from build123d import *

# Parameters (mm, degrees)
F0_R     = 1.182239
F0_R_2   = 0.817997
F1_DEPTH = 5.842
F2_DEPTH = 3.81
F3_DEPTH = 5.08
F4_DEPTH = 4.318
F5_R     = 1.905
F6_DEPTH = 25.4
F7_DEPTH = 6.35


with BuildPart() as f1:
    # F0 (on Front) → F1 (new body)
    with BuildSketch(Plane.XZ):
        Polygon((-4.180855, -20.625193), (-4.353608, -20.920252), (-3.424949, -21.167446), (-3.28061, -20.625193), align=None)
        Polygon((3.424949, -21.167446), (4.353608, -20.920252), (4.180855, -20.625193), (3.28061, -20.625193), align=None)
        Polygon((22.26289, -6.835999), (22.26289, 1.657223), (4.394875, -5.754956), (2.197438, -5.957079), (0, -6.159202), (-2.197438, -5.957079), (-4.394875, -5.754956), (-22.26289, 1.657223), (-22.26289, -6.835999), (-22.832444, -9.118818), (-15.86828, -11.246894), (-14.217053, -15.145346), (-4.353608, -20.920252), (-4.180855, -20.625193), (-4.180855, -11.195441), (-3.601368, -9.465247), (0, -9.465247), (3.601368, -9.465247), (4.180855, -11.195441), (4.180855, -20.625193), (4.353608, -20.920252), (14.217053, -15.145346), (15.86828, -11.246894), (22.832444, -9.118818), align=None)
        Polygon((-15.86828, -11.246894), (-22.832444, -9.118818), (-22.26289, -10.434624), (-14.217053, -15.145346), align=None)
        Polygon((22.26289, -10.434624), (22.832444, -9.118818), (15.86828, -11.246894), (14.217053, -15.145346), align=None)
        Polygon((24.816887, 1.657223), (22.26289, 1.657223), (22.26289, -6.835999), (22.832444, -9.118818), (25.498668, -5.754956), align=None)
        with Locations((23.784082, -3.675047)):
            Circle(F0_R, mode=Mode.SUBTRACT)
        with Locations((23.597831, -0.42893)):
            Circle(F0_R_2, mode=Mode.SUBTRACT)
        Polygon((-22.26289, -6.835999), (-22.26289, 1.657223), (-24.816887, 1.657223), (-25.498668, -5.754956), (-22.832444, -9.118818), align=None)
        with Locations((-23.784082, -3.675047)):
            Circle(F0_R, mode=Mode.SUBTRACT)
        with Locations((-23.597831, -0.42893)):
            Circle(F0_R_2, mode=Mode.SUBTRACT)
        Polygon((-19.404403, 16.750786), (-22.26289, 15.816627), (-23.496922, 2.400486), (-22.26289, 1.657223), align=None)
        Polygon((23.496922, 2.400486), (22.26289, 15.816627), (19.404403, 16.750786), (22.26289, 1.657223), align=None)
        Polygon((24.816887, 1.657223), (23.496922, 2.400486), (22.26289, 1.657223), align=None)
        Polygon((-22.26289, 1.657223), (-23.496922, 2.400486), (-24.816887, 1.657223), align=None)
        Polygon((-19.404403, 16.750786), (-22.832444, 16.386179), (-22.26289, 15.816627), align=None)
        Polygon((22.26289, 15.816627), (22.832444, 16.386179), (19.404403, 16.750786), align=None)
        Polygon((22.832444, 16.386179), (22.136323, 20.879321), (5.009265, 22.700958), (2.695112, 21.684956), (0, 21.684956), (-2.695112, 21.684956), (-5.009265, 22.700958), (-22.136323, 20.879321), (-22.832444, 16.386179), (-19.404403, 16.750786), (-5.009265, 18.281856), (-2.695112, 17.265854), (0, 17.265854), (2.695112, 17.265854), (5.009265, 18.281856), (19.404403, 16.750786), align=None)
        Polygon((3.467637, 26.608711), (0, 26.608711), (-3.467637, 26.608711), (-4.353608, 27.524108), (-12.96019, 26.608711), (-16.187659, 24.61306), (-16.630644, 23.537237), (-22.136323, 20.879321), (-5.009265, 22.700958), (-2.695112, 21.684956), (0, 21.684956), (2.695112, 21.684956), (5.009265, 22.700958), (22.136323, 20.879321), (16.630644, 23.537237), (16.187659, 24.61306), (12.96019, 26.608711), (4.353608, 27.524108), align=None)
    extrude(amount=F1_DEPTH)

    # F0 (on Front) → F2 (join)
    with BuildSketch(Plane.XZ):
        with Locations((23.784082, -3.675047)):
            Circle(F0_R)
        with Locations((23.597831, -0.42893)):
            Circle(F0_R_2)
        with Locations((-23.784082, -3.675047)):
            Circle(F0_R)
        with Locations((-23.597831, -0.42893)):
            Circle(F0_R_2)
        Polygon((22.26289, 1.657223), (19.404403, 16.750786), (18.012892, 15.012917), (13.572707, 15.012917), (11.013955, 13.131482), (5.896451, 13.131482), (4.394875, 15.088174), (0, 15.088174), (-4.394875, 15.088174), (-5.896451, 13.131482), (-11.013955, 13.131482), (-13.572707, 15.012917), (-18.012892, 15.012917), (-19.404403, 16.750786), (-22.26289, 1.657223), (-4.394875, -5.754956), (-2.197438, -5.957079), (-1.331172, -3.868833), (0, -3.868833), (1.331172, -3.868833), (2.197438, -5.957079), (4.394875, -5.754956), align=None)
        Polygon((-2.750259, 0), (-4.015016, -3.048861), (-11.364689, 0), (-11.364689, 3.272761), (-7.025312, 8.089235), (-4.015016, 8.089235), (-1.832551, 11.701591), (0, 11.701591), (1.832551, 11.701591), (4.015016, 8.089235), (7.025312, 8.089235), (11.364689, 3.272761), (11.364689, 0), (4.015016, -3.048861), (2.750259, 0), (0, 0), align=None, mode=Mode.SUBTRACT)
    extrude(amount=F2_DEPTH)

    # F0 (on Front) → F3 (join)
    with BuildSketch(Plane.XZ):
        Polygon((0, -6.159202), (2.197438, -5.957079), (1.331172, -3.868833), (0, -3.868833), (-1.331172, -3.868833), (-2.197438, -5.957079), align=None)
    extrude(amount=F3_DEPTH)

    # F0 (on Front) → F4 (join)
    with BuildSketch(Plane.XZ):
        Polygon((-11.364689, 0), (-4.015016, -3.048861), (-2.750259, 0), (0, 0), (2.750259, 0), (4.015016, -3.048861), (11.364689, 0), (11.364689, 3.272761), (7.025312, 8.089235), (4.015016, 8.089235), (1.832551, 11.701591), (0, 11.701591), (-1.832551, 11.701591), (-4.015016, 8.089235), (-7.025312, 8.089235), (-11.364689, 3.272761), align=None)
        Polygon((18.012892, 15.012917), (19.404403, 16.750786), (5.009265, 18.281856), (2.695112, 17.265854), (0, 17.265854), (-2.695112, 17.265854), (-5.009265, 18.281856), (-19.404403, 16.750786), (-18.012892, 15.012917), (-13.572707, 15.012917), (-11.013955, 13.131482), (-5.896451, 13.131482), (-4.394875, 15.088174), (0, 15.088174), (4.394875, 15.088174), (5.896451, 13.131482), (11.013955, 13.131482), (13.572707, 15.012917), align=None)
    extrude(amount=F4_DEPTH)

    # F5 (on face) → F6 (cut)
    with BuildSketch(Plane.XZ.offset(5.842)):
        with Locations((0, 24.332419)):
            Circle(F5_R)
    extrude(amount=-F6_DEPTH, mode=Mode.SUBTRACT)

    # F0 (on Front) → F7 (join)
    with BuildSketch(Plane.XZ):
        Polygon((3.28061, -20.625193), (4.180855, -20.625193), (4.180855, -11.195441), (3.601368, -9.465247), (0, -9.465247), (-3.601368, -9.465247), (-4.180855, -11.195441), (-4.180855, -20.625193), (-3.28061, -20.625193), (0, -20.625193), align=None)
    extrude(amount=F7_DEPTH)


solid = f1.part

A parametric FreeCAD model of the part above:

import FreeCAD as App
import Part
import Sketcher
Q = App.Units.Quantity

doc = App.newDocument("Part")
body = doc.addObject("PartDesign::Body", "Body")

# Sketch on XZ plane
sketch1 = body.newObject("Sketcher::SketchObject", "Sketch")
sketch1.AttachmentSupport = (doc.getObject("XZ_Plane"), [""])
sketch1.MapMode = "FlatFace"
sketch1.addGeometry([
    Part.LineSegment(App.Vector(-4.353608, -20.920252, 0), App.Vector(-3.424949, -21.167446, 0)),  # 0
    Part.LineSegment(App.Vector(-3.424949, -21.167446, 0), App.Vector(-3.28061, -20.625193, 0)),  # 1
    Part.LineSegment(App.Vector(-3.28061, -20.625193, 0), App.Vector(-4.180855, -20.625193, 0)),  # 2
    Part.LineSegment(App.Vector(-4.180855, -20.625193, 0), App.Vector(-4.180855, -11.195441, 0)),  # 3
    Part.LineSegment(App.Vector(-4.180855, -11.195441, 0), App.Vector(-3.601368, -9.465247, 0)),  # 4
    Part.LineSegment(App.Vector(-3.601368, -9.465247, 0), App.Vector(3.601368, -9.465247, 0)),  # 5
    Part.LineSegment(App.Vector(3.601368, -9.465247, 0), App.Vector(4.180855, -11.195441, 0)),  # 6
    Part.LineSegment(App.Vector(4.180855, -11.195441, 0), App.Vector(4.180855, -20.625193, 0)),  # 7
    Part.LineSegment(App.Vector(4.180855, -20.625193, 0), App.Vector(3.28061, -20.625193, 0)),  # 8
    Part.LineSegment(App.Vector(3.28061, -20.625193, 0), App.Vector(3.424949, -21.167446, 0)),  # 9
    Part.LineSegment(App.Vector(3.424949, -21.167446, 0), App.Vector(4.353608, -20.920252, 0)),  # 10
    Part.LineSegment(App.Vector(4.353608, -20.920252, 0), App.Vector(14.217053, -15.145346, 0)),  # 11
    Part.LineSegment(App.Vector(14.217053, -15.145346, 0), App.Vector(22.26289, -10.434624, 0)),  # 12
    Part.LineSegment(App.Vector(22.26289, -10.434624, 0), App.Vector(22.832444, -9.118818, 0)),  # 13
    Part.LineSegment(App.Vector(22.832444, -9.118818, 0), App.Vector(25.498668, -5.754956, 0)),  # 14
    Part.LineSegment(App.Vector(25.498668, -5.754956, 0), App.Vector(24.816887, 1.657223, 0)),  # 15
    Part.LineSegment(App.Vector(24.816887, 1.657223, 0), App.Vector(23.496922, 2.400486, 0)),  # 16
    Part.LineSegment(App.Vector(23.496922, 2.400486, 0), App.Vector(22.26289, 15.816627, 0)),  # 17
    Part.LineSegment(App.Vector(22.26289, 15.816627, 0), App.Vector(22.832444, 16.386179, 0)),  # 18
    Part.LineSegment(App.Vector(22.832444, 16.386179, 0), App.Vector(22.136323, 20.879321, 0)),  # 19
    Part.LineSegment(App.Vector(22.136323, 20.879321, 0), App.Vector(16.630644, 23.537237, 0)),  # 20
    Part.LineSegment(App.Vector(16.630644, 23.537237, 0), App.Vector(16.187659, 24.61306, 0)),  # 21
    Part.LineSegment(App.Vector(16.187659, 24.61306, 0), App.Vector(12.96019, 26.608711, 0)),  # 22
    Part.LineSegment(App.Vector(12.96019, 26.608711, 0), App.Vector(4.353608, 27.524108, 0)),  # 23
    Part.LineSegment(App.Vector(4.353608, 27.524108, 0), App.Vector(3.467637, 26.608711, 0)),  # 24
    Part.LineSegment(App.Vector(3.467637, 26.608711, 0), App.Vector(-3.467637, 26.608711, 0)),  # 25
    Part.LineSegment(App.Vector(-3.467637, 26.608711, 0), App.Vector(-4.353608, 27.524108, 0)),  # 26
    Part.LineSegment(App.Vector(-4.353608, 27.524108, 0), App.Vector(-12.96019, 26.608711, 0)),  # 27
    Part.LineSegment(App.Vector(-12.96019, 26.608711, 0), App.Vector(-16.187659, 24.61306, 0)),  # 28
    Part.LineSegment(App.Vector(-16.187659, 24.61306, 0), App.Vector(-16.630644, 23.537237, 0)),  # 29
    Part.LineSegment(App.Vector(-16.630644, 23.537237, 0), App.Vector(-22.136323, 20.879321, 0)),  # 30
    Part.LineSegment(App.Vector(-22.136323, 20.879321, 0), App.Vector(-22.832444, 16.386179, 0)),  # 31
    Part.LineSegment(App.Vector(-22.832444, 16.386179, 0), App.Vector(-22.26289, 15.816627, 0)),  # 32
    Part.LineSegment(App.Vector(-22.26289, 15.816627, 0), App.Vector(-23.496922, 2.400486, 0)),  # 33
    Part.LineSegment(App.Vector(-23.496922, 2.400486, 0), App.Vector(-24.816887, 1.657223, 0)),  # 34
    Part.LineSegment(App.Vector(-24.816887, 1.657223, 0), App.Vector(-25.498668, -5.754956, 0)),  # 35
    Part.LineSegment(App.Vector(-25.498668, -5.754956, 0), App.Vector(-22.832444, -9.118818, 0)),  # 36
    Part.LineSegment(App.Vector(-22.832444, -9.118818, 0), App.Vector(-22.26289, -10.434624, 0)),  # 37
    Part.LineSegment(App.Vector(-22.26289, -10.434624, 0), App.Vector(-14.217053, -15.145346, 0)),  # 38
    Part.LineSegment(App.Vector(-14.217053, -15.145346, 0), App.Vector(-4.353608, -20.920252, 0)),  # 39
    Part.LineSegment(App.Vector(19.404403, 16.750786, 0), App.Vector(22.26289, 1.657223, 0)),  # 40
    Part.LineSegment(App.Vector(22.26289, 1.657223, 0), App.Vector(4.394875, -5.754956, 0)),  # 41
    Part.LineSegment(App.Vector(4.394875, -5.754956, 0), App.Vector(2.197438, -5.957079, 0)),  # 42
    Part.LineSegment(App.Vector(2.197438, -5.957079, 0), App.Vector(0, -6.159202, 0)),  # 43
    Part.LineSegment(App.Vector(0, -6.159202, 0), App.Vector(-2.197438, -5.957079, 0)),  # 44
    Part.LineSegment(App.Vector(-2.197438, -5.957079, 0), App.Vector(-4.394875, -5.754956, 0)),  # 45
    Part.LineSegment(App.Vector(-4.394875, -5.754956, 0), App.Vector(-22.26289, 1.657223, 0)),  # 46
    Part.LineSegment(App.Vector(-22.26289, 1.657223, 0), App.Vector(-19.404403, 16.750786, 0)),  # 47
    Part.LineSegment(App.Vector(-19.404403, 16.750786, 0), App.Vector(-5.009265, 18.281856, 0)),  # 48
    Part.LineSegment(App.Vector(-5.009265, 18.281856, 0), App.Vector(-2.695112, 17.265854, 0)),  # 49
    Part.LineSegment(App.Vector(-2.695112, 17.265854, 0), App.Vector(2.695112, 17.265854, 0)),  # 50
    Part.LineSegment(App.Vector(2.695112, 17.265854, 0), App.Vector(5.009265, 18.281856, 0)),  # 51
    Part.LineSegment(App.Vector(5.009265, 18.281856, 0), App.Vector(19.404403, 16.750786, 0)),  # 52
    Part.Circle(App.Vector(-23.784082, -3.675047, 0), App.Vector(0, 0, 1), 1.182239),  # 53
    Part.Circle(App.Vector(23.784082, -3.675047, 0), App.Vector(0, 0, 1), 1.182239),  # 54
    Part.Circle(App.Vector(-23.597831, -0.42893, 0), App.Vector(0, 0, 1), 0.817997),  # 55
    Part.Circle(App.Vector(23.597831, -0.42893, 0), App.Vector(0, 0, 1), 0.817997),  # 56
], False)
sketch1.addConstraint([
    Sketcher.Constraint("Coincident", 0, 2, 1, 1),
    Sketcher.Constraint("Coincident", 1, 2, 2, 1),
    Sketcher.Constraint("Coincident", 2, 2, 3, 1),
    Sketcher.Constraint("Coincident", 3, 2, 4, 1),
    Sketcher.Constraint("Coincident", 4, 2, 5, 1),
    Sketcher.Constraint("Coincident", 5, 2, 6, 1),
    Sketcher.Constraint("Coincident", 6, 2, 7, 1),
    Sketcher.Constraint("Coincident", 7, 2, 8, 1),
    Sketcher.Constraint("Coincident", 8, 2, 9, 1),
    Sketcher.Constraint("Coincident", 9, 2, 10, 1),
    Sketcher.Constraint("Coincident", 10, 2, 11, 1),
    Sketcher.Constraint("Coincident", 11, 2, 12, 1),
    Sketcher.Constraint("Coincident", 12, 2, 13, 1),
    Sketcher.Constraint("Coincident", 13, 2, 14, 1),
    Sketcher.Constraint("Coincident", 14, 2, 15, 1),
    Sketcher.Constraint("Coincident", 15, 2, 16, 1),
    Sketcher.Constraint("Coincident", 16, 2, 17, 1),
    Sketcher.Constraint("Coincident", 17, 2, 18, 1),
    Sketcher.Constraint("Coincident", 18, 2, 19, 1),
    Sketcher.Constraint("Coincident", 19, 2, 20, 1),
    Sketcher.Constraint("Coincident", 20, 2, 21, 1),
    Sketcher.Constraint("Coincident", 21, 2, 22, 1),
    Sketcher.Constraint("Coincident", 22, 2, 23, 1),
    Sketcher.Constraint("Coincident", 23, 2, 24, 1),
    Sketcher.Constraint("Coincident", 24, 2, 25, 1),
    Sketcher.Constraint("Coincident", 25, 2, 26, 1),
    Sketcher.Constraint("Coincident", 26, 2, 27, 1),
    Sketcher.Constraint("Coincident", 27, 2, 28, 1),
    Sketcher.Constraint("Coincident", 28, 2, 29, 1),
    Sketcher.Constraint("Coincident", 29, 2, 30, 1),
    Sketcher.Constraint("Coincident", 30, 2, 31, 1),
    Sketcher.Constraint("Coincident", 31, 2, 32, 1),
    Sketcher.Constraint("Coincident", 32, 2, 33, 1),
    Sketcher.Constraint("Coincident", 33, 2, 34, 1),
    Sketcher.Constraint("Coincident", 34, 2, 35, 1),
    Sketcher.Constraint("Coincident", 35, 2, 36, 1),
    Sketcher.Constraint("Coincident", 36, 2, 37, 1),
    Sketcher.Constraint("Coincident", 37, 2, 38, 1),
    Sketcher.Constraint("Coincident", 38, 2, 39, 1),
    Sketcher.Constraint("Coincident", 39, 2, 0, 1),
    Sketcher.Constraint("Coincident", 40, 2, 41, 1),
    Sketcher.Constraint("Coincident", 41, 2, 42, 1),
    Sketcher.Constraint("Coincident", 42, 2, 43, 1),
    Sketcher.Constraint("Coincident", 43, 2, 44, 1),
    Sketcher.Constraint("Coincident", 44, 2, 45, 1),
    Sketcher.Constraint("Coincident", 45, 2, 46, 1),
    Sketcher.Constraint("Coincident", 46, 2, 47, 1),
    Sketcher.Constraint("Coincident", 47, 2, 48, 1),
    Sketcher.Constraint("Coincident", 48, 2, 49, 1),
    Sketcher.Constraint("Coincident", 49, 2, 50, 1),
    Sketcher.Constraint("Coincident", 50, 2, 51, 1),
    Sketcher.Constraint("Coincident", 51, 2, 52, 1),
    Sketcher.Constraint("Coincident", 52, 2, 40, 1),
    Sketcher.Constraint("Horizontal", 2),
    Sketcher.Constraint("Vertical", 3),
    Sketcher.Constraint("Horizontal", 5),
    Sketcher.Constraint("Vertical", 7),
    Sketcher.Constraint("Horizontal", 8),
    Sketcher.Constraint("Horizontal", 25),
    Sketcher.Constraint("Horizontal", 50),
    Sketcher.Constraint("PointOnObject", 43, 2, -2),
    Sketcher.Constraint("DistanceY", 49, 2, 48, 2, Q("0.0400001 in")),
    Sketcher.Constraint("DistanceY", 50, 2, 51, 2, Q("0.0400001 in")),
    Sketcher.Constraint("Diameter", 53, Q("2.364478 mm")),
    Sketcher.Constraint("Diameter", 54, Q("2.364478 mm")),
    Sketcher.Constraint("Diameter", 55, Q("1.635994 mm")),
    Sketcher.Constraint("Diameter", 56, Q("1.635994 mm")),
    Sketcher.Constraint("DistanceY", 53, 3, 55, 3, Q("0.1277999 in")),
    Sketcher.Constraint("DistanceY", 54, 3, 55, 3, Q("0.1277999 in")),
    Sketcher.Constraint("DistanceY", 54, 3, 56, 3, Q("0.1277999 in")),
    Sketcher.Constraint("DistanceX", 41, 2, 11, 2, Q("0.3866999 in")),
    Sketcher.Constraint("DistanceY", 3, 1, 3, 2, Q("9.429752 mm")),
    Sketcher.Constraint("DistanceY", 7, 2, 7, 1, Q("9.429752 mm")),
    Sketcher.Constraint("DistanceY", 43, 2, -1, 1, Q("6.159202 mm")),
    Sketcher.Constraint("DistanceY", 0, 2, 53, 3, Q("17.492399 mm")),
    Sketcher.Constraint("DistanceY", 0, 2, 4, 2, Q("11.702199 mm")),
    Sketcher.Constraint("DistanceX", 8, 2, 10, 2, Q("1.072998 mm")),
    Sketcher.Constraint("DistanceY", 11, 2, 5, 2, Q("5.680099 mm")),
    Sketcher.Constraint("DistanceX", 19, 2, 16, 2, Q("1.360599 mm")),
    Sketcher.Constraint("DistanceY", 15, 2, 19, 2, Q("19.222098 mm")),
    Sketcher.Constraint("DistanceX", 20, 2, 18, 2, Q("6.2018 mm")),
    Sketcher.Constraint("DistanceX", 22, 2, 17, 2, Q("9.3027 mm")),
    Sketcher.Constraint("DistanceX", 26, 2, 22, 2, Q("17.313798 mm")),
    Sketcher.Constraint("DistanceX", 27, 2, 23, 2, Q("17.313798 mm")),
    Sketcher.Constraint("DistanceX", 31, 2, 29, 2, Q("6.2018 mm")),
    Sketcher.Constraint("DistanceX", 32, 2, 27, 2, Q("9.3027 mm")),
    Sketcher.Constraint("DistanceX", 33, 2, 30, 2, Q("1.360599 mm")),
    Sketcher.Constraint("DistanceY", 38, 2, 4, 2, Q("5.680099 mm")),
    Sketcher.Constraint("DistanceX", 39, 2, 1, 2, Q("1.072998 mm")),
    Sketcher.Constraint("DistanceX", 48, 2, 24, 2, Q("8.476902 mm")),
    Sketcher.Constraint("Distance", 11, Q("11.429658 mm")),
    Sketcher.Constraint("Distance", 15, Q("7.443468 mm")),
    Sketcher.Constraint("Distance", 18, Q("0.80547 mm")),
    Sketcher.Constraint("Distance", 24, Q("1.273929 mm")),
    Sketcher.Constraint("Distance", 26, Q("1.273929 mm")),
    Sketcher.Constraint("Distance", 32, Q("0.80547 mm")),
    Sketcher.Constraint("Distance", 35, Q("7.443468 mm")),
    Sketcher.Constraint("Distance", 39, Q("11.429658 mm")),
    Sketcher.Constraint("Distance", 48, Q("14.476331 mm")),
    Sketcher.Constraint("Distance", 52, Q("14.476331 mm")),
    Sketcher.Constraint("DistanceX", 2, 2, 2, 1, Q("0.900245 mm")),
    Sketcher.Constraint("DistanceX", 5, 1, 5, 2, Q("7.202736 mm")),
    Sketcher.Constraint("DistanceX", 8, 2, 8, 1, Q("0.900245 mm")),
    Sketcher.Constraint("DistanceX", 25, 2, 25, 1, Q("6.935274 mm")),
    Sketcher.Constraint("DistanceX", 50, 1, 50, 2, Q("5.390224 mm")),
    Sketcher.Constraint("DistanceX", 55, 3, -1, 1, Q("23.597831 mm")),
    Sketcher.Constraint("DistanceY", 55, 3, -1, 1, Q("0.42893 mm")),
    Sketcher.Constraint("DistanceX", -1, 1, 56, 3, Q("23.597831 mm")),
    Sketcher.Constraint("DistanceX", 0, 2, -1, 1, Q("3.424949 mm")),
    Sketcher.Constraint("DistanceX", 1, 2, -1, 1, Q("3.28061 mm")),
    Sketcher.Constraint("DistanceY", 3, 2, -1, 1, Q("11.195441 mm")),
    Sketcher.Constraint("DistanceY", 6, 2, -1, 1, Q("11.195441 mm")),
    Sketcher.Constraint("DistanceX", -1, 1, 8, 2, Q("3.28061 mm")),
    Sketcher.Constraint("DistanceX", -1, 1, 9, 2, Q("3.424949 mm")),
    Sketcher.Constraint("DistanceX", -1, 1, 12, 2, Q("22.26289 mm")),
    Sketcher.Constraint("DistanceX", -1, 1, 17, 2, Q("22.26289 mm")),
    Sketcher.Constraint("DistanceY", -1, 1, 18, 2, Q("16.386179 mm")),
    Sketcher.Constraint("DistanceY", -1, 1, 19, 2, Q("20.879321 mm")),
    Sketcher.Constraint("DistanceX", -1, 1, 21, 2, Q("16.187659 mm")),
    Sketcher.Constraint("DistanceY", -1, 1, 21, 2, Q("24.61306 mm")),
    Sketcher.Constraint("DistanceY", -1, 1, 22, 2, Q("26.608711 mm")),
    Sketcher.Constraint("DistanceX", -1, 1, 23, 2, Q("4.353608 mm")),
    Sketcher.Constraint("DistanceY", -1, 1, 24, 2, Q("26.608711 mm")),
    Sketcher.Constraint("DistanceY", -1, 1, 27, 2, Q("26.608711 mm")),
    Sketcher.Constraint("DistanceX", 28, 2, -1, 1, Q("16.187659 mm")),
    Sketcher.Constraint("DistanceY", -1, 1, 28, 2, Q("24.61306 mm")),
    Sketcher.Constraint("DistanceY", -1, 1, 30, 2, Q("20.879321 mm")),
    Sketcher.Constraint("DistanceY", -1, 1, 31, 2, Q("16.386179 mm")),
    Sketcher.Constraint("DistanceX", 37, 2, -1, 1, Q("22.26289 mm")),
    Sketcher.Constraint("DistanceX", -1, 1, 40, 2, Q("22.26289 mm")),
    Sketcher.Constraint("DistanceX", -1, 1, 42, 2, Q("2.197438 mm")),
    Sketcher.Constraint("DistanceY", 42, 2, -1, 1, Q("5.957079 mm")),
    Sketcher.Constraint("DistanceX", 44, 2, -1, 1, Q("2.197438 mm")),
    Sketcher.Constraint("DistanceY", 44, 2, -1, 1, Q("5.957079 mm")),
    Sketcher.Constraint("DistanceX", 46, 2, -1, 1, Q("22.26289 mm")),
    Sketcher.Constraint("DistanceX", 49, 2, -1, 1, Q("2.695112 mm")),
    Sketcher.Constraint("DistanceX", 53, 3, 55, 3, Q("0.186251 mm")),
    Sketcher.Constraint("DistanceX", 56, 3, 54, 3, Q("0.186251 mm")),
    Sketcher.Constraint("DistanceX", 4, 2, 1, 2, Q("0.320758 mm")),
    Sketcher.Constraint("DistanceY", 10, 2, 7, 2, Q("0.295059 mm")),
    Sketcher.Constraint("DistanceX", 13, 2, 54, 3, Q("0.951638 mm")),
    Sketcher.Constraint("DistanceY", 13, 2, 54, 3, Q("5.443771 mm")),
    Sketcher.Constraint("DistanceY", 14, 2, 54, 3, Q("2.079909 mm")),
    Sketcher.Constraint("DistanceX", 16, 2, 56, 3, Q("0.100909 mm")),
    Sketcher.Constraint("DistanceY", 16, 2, 17, 2, Q("13.416141 mm")),
    Sketcher.Constraint("DistanceY", 17, 2, 18, 2, Q("0.569552 mm")),
    Sketcher.Constraint("DistanceY", 18, 2, 20, 2, Q("7.151058 mm")),
    Sketcher.Constraint("DistanceY", 20, 2, 23, 2, Q("3.986871 mm")),
    Sketcher.Constraint("DistanceY", 29, 2, 26, 2, Q("3.986871 mm")),
    Sketcher.Constraint("DistanceX", 29, 2, 24, 2, Q("20.098281 mm")),
    Sketcher.Constraint("DistanceX", 30, 2, 29, 2, Q("5.505679 mm")),
    Sketcher.Constraint("DistanceY", 33, 2, 32, 2, Q("13.416141 mm")),
    Sketcher.Constraint("DistanceY", 53, 3, 34, 2, Q("5.33227 mm")),
    Sketcher.Constraint("DistanceY", 35, 2, 53, 3, Q("2.079909 mm")),
    Sketcher.Constraint("DistanceY", 36, 2, 35, 2, Q("3.363862 mm")),
    Sketcher.Constraint("DistanceX", 53, 3, 36, 2, Q("0.951638 mm")),
    Sketcher.Constraint("DistanceX", 36, 2, 38, 2, Q("8.615391 mm")),
    Sketcher.Constraint("DistanceY", 54, 3, 40, 2, Q("5.33227 mm")),
    Sketcher.Constraint("DistanceY", 5, 2, 41, 2, Q("3.710291 mm")),
    Sketcher.Constraint("DistanceY", 4, 2, 45, 2, Q("3.710291 mm")),
    Sketcher.Constraint("DistanceX", 45, 2, 3, 2, Q("0.21402 mm")),
    Sketcher.Constraint("DistanceY", 53, 3, 46, 2, Q("5.33227 mm")),
    Sketcher.Constraint("DistanceY", 32, 2, 47, 2, Q("0.934159 mm")),
    Sketcher.Constraint("DistanceX", 31, 2, 47, 2, Q("3.428041 mm")),
    Sketcher.Constraint("DistanceX", 24, 2, 51, 2, Q("1.541628 mm")),
    Sketcher.Constraint("DistanceY", 17, 2, 52, 2, Q("0.934159 mm")),
    Sketcher.Constraint("Distance", 9, Q("0.561135 mm")),
    Sketcher.Constraint("Distance", 12, Q("9.323433 mm")),
    Sketcher.Constraint("Distance", 14, Q("4.292356 mm")),
    Sketcher.Constraint("Distance", 34, Q("1.514842 mm")),
    Sketcher.Constraint("Distance", 37, Q("1.433784 mm")),
])
pad1 = body.newObject("PartDesign::Pad", "Pad")
pad1.Profile = sketch1
pad1.Length = Q("0.23 in")

# Sketch on XZ plane
sketch2 = body.newObject("Sketcher::SketchObject", "Sketch001")
sketch2.AttachmentSupport = (doc.getObject("XZ_Plane"), [""])
sketch2.MapMode = "FlatFace"
sketch2.addGeometry([
    Part.Circle(App.Vector(23.784082, -3.675047, 0), App.Vector(0, 0, 1), 1.182239),  # 0
    Part.Circle(App.Vector(23.597831, -0.42893, 0), App.Vector(0, 0, 1), 0.817997),  # 1
    Part.Circle(App.Vector(-23.784082, -3.675047, 0), App.Vector(0, 0, 1), 1.182239),  # 2
    Part.Circle(App.Vector(-23.597831, -0.42893, 0), App.Vector(0, 0, 1), 0.817997),  # 3
    Part.LineSegment(App.Vector(22.26289, 1.657223, 0), App.Vector(19.404403, 16.750786, 0)),  # 4
    Part.LineSegment(App.Vector(19.404403, 16.750786, 0), App.Vector(18.012892, 15.012917, 0)),  # 5
    Part.LineSegment(App.Vector(18.012892, 15.012917, 0), App.Vector(13.572707, 15.012917, 0)),  # 6
    Part.LineSegment(App.Vector(13.572707, 15.012917, 0), App.Vector(11.013955, 13.131482, 0)),  # 7
    Part.LineSegment(App.Vector(11.013955, 13.131482, 0), App.Vector(5.896451, 13.131482, 0)),  # 8
    Part.LineSegment(App.Vector(5.896451, 13.131482, 0), App.Vector(4.394875, 15.088174, 0)),  # 9
    Part.LineSegment(App.Vector(4.394875, 15.088174, 0), App.Vector(-4.394875, 15.088174, 0)),  # 10
    Part.LineSegment(App.Vector(-4.394875, 15.088174, 0), App.Vector(-5.896451, 13.131482, 0)),  # 11
    Part.LineSegment(App.Vector(-5.896451, 13.131482, 0), App.Vector(-11.013955, 13.131482, 0)),  # 12
    Part.LineSegment(App.Vector(-11.013955, 13.131482, 0), App.Vector(-13.572707, 15.012917, 0)),  # 13
    Part.LineSegment(App.Vector(-13.572707, 15.012917, 0), App.Vector(-18.012892, 15.012917, 0)),  # 14
    Part.LineSegment(App.Vector(-18.012892, 15.012917, 0), App.Vector(-19.404403, 16.750786, 0)),  # 15
    Part.LineSegment(App.Vector(-19.404403, 16.750786, 0), App.Vector(-22.26289, 1.657223, 0)),  # 16
    Part.LineSegment(App.Vector(-22.26289, 1.657223, 0), App.Vector(-4.394875, -5.754956, 0)),  # 17
    Part.LineSegment(App.Vector(-4.394875, -5.754956, 0), App.Vector(-2.197438, -5.957079, 0)),  # 18
    Part.LineSegment(App.Vector(-2.197438, -5.957079, 0), App.Vector(-1.331172, -3.868833, 0)),  # 19
    Part.LineSegment(App.Vector(-1.331172, -3.868833, 0), App.Vector(1.331172, -3.868833, 0)),  # 20
    Part.LineSegment(App.Vector(1.331172, -3.868833, 0), App.Vector(2.197438, -5.957079, 0)),  # 21
    Part.LineSegment(App.Vector(2.197438, -5.957079, 0), App.Vector(4.394875, -5.754956, 0)),  # 22
    Part.LineSegment(App.Vector(4.394875, -5.754956, 0), App.Vector(22.26289, 1.657223, 0)),  # 23
    Part.LineSegment(App.Vector(2.750259, 0, 0), App.Vector(-2.750259, 0, 0)),  # 24
    Part.LineSegment(App.Vector(-2.750259, 0, 0), App.Vector(-4.015016, -3.048861, 0)),  # 25
    Part.LineSegment(App.Vector(-4.015016, -3.048861, 0), App.Vector(-11.364689, 0, 0)),  # 26
    Part.LineSegment(App.Vector(-11.364689, 0, 0), App.Vector(-11.364689, 3.272761, 0)),  # 27
    Part.LineSegment(App.Vector(-11.364689, 3.272761, 0), App.Vector(-7.025312, 8.089235, 0)),  # 28
    Part.LineSegment(App.Vector(-7.025312, 8.089235, 0), App.Vector(-4.015016, 8.089235, 0)),  # 29
    Part.LineSegment(App.Vector(-4.015016, 8.089235, 0), App.Vector(-1.832551, 11.701591, 0)),  # 30
    Part.LineSegment(App.Vector(-1.832551, 11.701591, 0), App.Vector(1.832551, 11.701591, 0)),  # 31
    Part.LineSegment(App.Vector(1.832551, 11.701591, 0), App.Vector(4.015016, 8.089235, 0)),  # 32
    Part.LineSegment(App.Vector(4.015016, 8.089235, 0), App.Vector(7.025312, 8.089235, 0)),  # 33
    Part.LineSegment(App.Vector(7.025312, 8.089235, 0), App.Vector(11.364689, 3.272761, 0)),  # 34
    Part.LineSegment(App.Vector(11.364689, 3.272761, 0), App.Vector(11.364689, 0, 0)),  # 35
    Part.LineSegment(App.Vector(11.364689, 0, 0), App.Vector(4.015016, -3.048861, 0)),  # 36
    Part.LineSegment(App.Vector(4.015016, -3.048861, 0), App.Vector(2.750259, 0, 0)),  # 37
], False)
sketch2.addConstraint([
    Sketcher.Constraint("Coincident", 4, 2, 5, 1),
    Sketcher.Constraint("Coincident", 5, 2, 6, 1),
    Sketcher.Constraint("Coincident", 6, 2, 7, 1),
    Sketcher.Constraint("Coincident", 7, 2, 8, 1),
    Sketcher.Constraint("Coincident", 8, 2, 9, 1),
    Sketcher.Constraint("Coincident", 9, 2, 10, 1),
    Sketcher.Constraint("Coincident", 10, 2, 11, 1),
    Sketcher.Constraint("Coincident", 11, 2, 12, 1),
    Sketcher.Constraint("Coincident", 12, 2, 13, 1),
    Sketcher.Constraint("Coincident", 13, 2, 14, 1),
    Sketcher.Constraint("Coincident", 14, 2, 15, 1),
    Sketcher.Constraint("Coincident", 15, 2, 16, 1),
    Sketcher.Constraint("Coincident", 16, 2, 17, 1),
    Sketcher.Constraint("Coincident", 17, 2, 18, 1),
    Sketcher.Constraint("Coincident", 18, 2, 19, 1),
    Sketcher.Constraint("Coincident", 19, 2, 20, 1),
    Sketcher.Constraint("Coincident", 20, 2, 21, 1),
    Sketcher.Constraint("Coincident", 21, 2, 22, 1),
    Sketcher.Constraint("Coincident", 22, 2, 23, 1),
    Sketcher.Constraint("Coincident", 23, 2, 4, 1),
    Sketcher.Constraint("Coincident", 24, 2, 25, 1),
    Sketcher.Constraint("Coincident", 25, 2, 26, 1),
    Sketcher.Constraint("Coincident", 26, 2, 27, 1),
    Sketcher.Constraint("Coincident", 27, 2, 28, 1),
    Sketcher.Constraint("Coincident", 28, 2, 29, 1),
    Sketcher.Constraint("Coincident", 29, 2, 30, 1),
    Sketcher.Constraint("Coincident", 30, 2, 31, 1),
    Sketcher.Constraint("Coincident", 31, 2, 32, 1),
    Sketcher.Constraint("Coincident", 32, 2, 33, 1),
    Sketcher.Constraint("Coincident", 33, 2, 34, 1),
    Sketcher.Constraint("Coincident", 34, 2, 35, 1),
    Sketcher.Constraint("Coincident", 35, 2, 36, 1),
    Sketcher.Constraint("Coincident", 36, 2, 37, 1),
    Sketcher.Constraint("Coincident", 37, 2, 24, 1),
    Sketcher.Constraint("Horizontal", 6),
    Sketcher.Constraint("Horizontal", 8),
    Sketcher.Constraint("Horizontal", 10),
    Sketcher.Constraint("Horizontal", 12),
    Sketcher.Constraint("Horizontal", 14),
    Sketcher.Constraint("Horizontal", 20),
    Sketcher.Constraint("Horizontal", 24),
    Sketcher.Constraint("Vertical", 27),
    Sketcher.Constraint("Horizontal", 29),
    Sketcher.Constraint("Horizontal", 31),
    Sketcher.Constraint("Horizontal", 33),
    Sketcher.Constraint("Vertical", 35),
    Sketcher.Constraint("Equal", 0, 2),
    Sketcher.Constraint("Equal", 1, 3),
    Sketcher.Constraint("Symmetric", 26, 2, 35, 2, -1, 1),
    Sketcher.Constraint("Symmetric", 24, 2, 37, 2, -1, 1),
    Sketcher.Constraint("Symmetric", 0, 3, 2, 3, -2),
    Sketcher.Constraint("Symmetric", 1, 3, 3, 3, -2),
    Sketcher.Constraint("Symmetric", 8, 2, 11, 2, -2),
    Sketcher.Constraint("Symmetric", 6, 2, 13, 2, -2),
    Sketcher.Constraint("Symmetric", 4, 2, 15, 2, -2),
    Sketcher.Constraint("Symmetric", 18, 2, 21, 2, -2),
    Sketcher.Constraint("Symmetric", 17, 2, 22, 2, -2),
    Sketcher.Constraint("Symmetric", 16, 2, 23, 2, -2),
    Sketcher.Constraint("Symmetric", 29, 2, 32, 2, -2),
    Sketcher.Constraint("Symmetric", 25, 2, 36, 2, -2),
    Sketcher.Constraint("PointOnObject", 26, 2, -1),
    Sketcher.Constraint("Perpendicular", 17, 19),
    Sketcher.Constraint("Perpendicular", 21, 23),
    Sketcher.Constraint("Parallel", 19, 25),
    Sketcher.Constraint("Perpendicular", 25, 26),
    Sketcher.Constraint("Horizontal", 27, 2, 34, 2),
    Sketcher.Constraint("Vertical", 10, 2, 17, 2),
    Sketcher.Constraint("Vertical", 9, 2, 22, 2),
    Sketcher.Constraint("Vertical", 25, 2, 29, 2),
    Sketcher.Constraint("Equal", 8, 12),
    Sketcher.Constraint("Equal", 6, 14),
    Sketcher.Constraint("Equal", 29, 33),
    Sketcher.Constraint("Equal", 30, 32),
    Sketcher.Constraint("Diameter", 0, Q("2.364478 mm")),
    Sketcher.Constraint("Diameter", 1, Q("1.635994 mm")),
    Sketcher.Constraint("DistanceY", 0, 3, 1, 3, Q("0.1277999 in")),
    Sketcher.Constraint("DistanceX", 10, 2, 10, 1, Q("8.78975 mm")),
    Sketcher.Constraint("DistanceY", 27, 1, 27, 2, Q("3.272761 mm")),
    Sketcher.Constraint("DistanceX", 16, 2, 27, 2, Q("10.898201 mm")),
    Sketcher.Constraint("DistanceX", 11, 2, 30, 2, Q("4.0639 mm")),
    Sketcher.Constraint("Distance", 9, Q("2.46645 mm")),
    Sketcher.Constraint("Distance", 30, Q("4.220458 mm")),
    Sketcher.Constraint("DistanceX", 6, 2, 6, 1, Q("4.440185 mm")),
    Sketcher.Constraint("DistanceX", 8, 2, 8, 1, Q("5.117504 mm")),
    Sketcher.Constraint("DistanceX", 20, 1, 20, 2, Q("2.662344 mm")),
    Sketcher.Constraint("DistanceX", 24, 2, 24, 1, Q("5.500518 mm")),
    Sketcher.Constraint("DistanceX", 29, 1, 29, 2, Q("3.010296 mm")),
    Sketcher.Constraint("DistanceX", 31, 1, 31, 2, Q("3.665102 mm")),
    Sketcher.Constraint("DistanceX", -1, 1, 1, 3, Q("23.597831 mm")),
    Sketcher.Constraint("DistanceY", 1, 3, -1, 1, Q("0.42893 mm")),
    Sketcher.Constraint("DistanceX", 16, 2, -1, 1, Q("22.26289 mm")),
    Sketcher.Constraint("DistanceX", 18, 2, -1, 1, Q("2.197438 mm")),
    Sketcher.Constraint("DistanceY", 18, 2, -1, 1, Q("5.957079 mm")),
    Sketcher.Constraint("DistanceY", 25, 2, -1, 1, Q("3.048861 mm")),
    Sketcher.Constraint("DistanceY", -1, 1, 30, 2, Q("11.701591 mm")),
    Sketcher.Constraint("DistanceX", 1, 3, 0, 3, Q("0.186251 mm")),
    Sketcher.Constraint("DistanceX", 4, 2, 1, 3, Q("4.193428 mm")),
    Sketcher.Constraint("DistanceX", 5, 2, 4, 2, Q("1.391511 mm")),
    Sketcher.Constraint("DistanceY", 5, 2, 4, 2, Q("1.737869 mm")),
    Sketcher.Constraint("DistanceY", 0, 3, 7, 2, Q("16.806529 mm")),
    Sketcher.Constraint("DistanceY", 2, 3, 16, 2, Q("5.33227 mm")),
    Sketcher.Constraint("Distance", 4, Q("15.361855 mm")),
])
pad2 = body.newObject("PartDesign::Pad", "Pad001")
pad2.Profile = sketch2
pad2.Length = Q("0.15 in")

# Sketch on XZ plane
sketch3 = body.newObject("Sketcher::SketchObject", "Sketch002")
sketch3.AttachmentSupport = (doc.getObject("XZ_Plane"), [""])
sketch3.MapMode = "FlatFace"
sketch3.addGeometry([
    Part.LineSegment(App.Vector(0, -6.159202, 0), App.Vector(2.197438, -5.957079, 0)),  # 0
    Part.LineSegment(App.Vector(2.197438, -5.957079, 0), App.Vector(1.331172, -3.868833, 0)),  # 1
    Part.LineSegment(App.Vector(1.331172, -3.868833, 0), App.Vector(-1.331172, -3.868833, 0)),  # 2
    Part.LineSegment(App.Vector(-1.331172, -3.868833, 0), App.Vector(-2.197438, -5.957079, 0)),  # 3
    Part.LineSegment(App.Vector(-2.197438, -5.957079, 0), App.Vector(0, -6.159202, 0)),  # 4
], False)
sketch3.addConstraint([
    Sketcher.Constraint("Coincident", 0, 2, 1, 1),
    Sketcher.Constraint("Coincident", 1, 2, 2, 1),
    Sketcher.Constraint("Coincident", 2, 2, 3, 1),
    Sketcher.Constraint("Coincident", 3, 2, 4, 1),
    Sketcher.Constraint("Coincident", 4, 2, 0, 1),
    Sketcher.Constraint("Horizontal", 2),
    Sketcher.Constraint("Symmetric", 0, 2, 3, 2, -2),
    Sketcher.Constraint("PointOnObject", 4, 2, -2),
    Sketcher.Constraint("Equal", 1, 3),
    Sketcher.Constraint("DistanceY", 4, 2, -1, 1, Q("6.159202 mm")),
    Sketcher.Constraint("DistanceX", 2, 2, 2, 1, Q("2.662344 mm")),
    Sketcher.Constraint("DistanceX", -1, 1, 0, 2, Q("2.197438 mm")),
    Sketcher.Constraint("DistanceY", 0, 2, -1, 1, Q("5.957079 mm")),
    Sketcher.Constraint("DistanceY", 4, 2, 1, 2, Q("2.290369 mm")),
])
pad3 = body.newObject("PartDesign::Pad", "Pad002")
pad3.Profile = sketch3
pad3.Length = Q("0.2 in")

# Sketch on XZ plane
sketch4 = body.newObject("Sketcher::SketchObject", "Sketch003")
sketch4.AttachmentSupport = (doc.getObject("XZ_Plane"), [""])
sketch4.MapMode = "FlatFace"
sketch4.addGeometry([
    Part.LineSegment(App.Vector(-11.364689, 0, 0), App.Vector(-4.015016, -3.048861, 0)),  # 0
    Part.LineSegment(App.Vector(-4.015016, -3.048861, 0), App.Vector(-2.750259, 0, 0)),  # 1
    Part.LineSegment(App.Vector(-2.750259, 0, 0), App.Vector(2.750259, 0, 0)),  # 2
    Part.LineSegment(App.Vector(2.750259, 0, 0), App.Vector(4.015016, -3.048861, 0)),  # 3
    Part.LineSegment(App.Vector(4.015016, -3.048861, 0), App.Vector(11.364689, 0, 0)),  # 4
    Part.LineSegment(App.Vector(11.364689, 0, 0), App.Vector(11.364689, 3.272761, 0)),  # 5
    Part.LineSegment(App.Vector(11.364689, 3.272761, 0), App.Vector(7.025312, 8.089235, 0)),  # 6
    Part.LineSegment(App.Vector(7.025312, 8.089235, 0), App.Vector(4.015016, 8.089235, 0)),  # 7
    Part.LineSegment(App.Vector(4.015016, 8.089235, 0), App.Vector(1.832551, 11.701591, 0)),  # 8
    Part.LineSegment(App.Vector(1.832551, 11.701591, 0), App.Vector(-1.832551, 11.701591, 0)),  # 9
    Part.LineSegment(App.Vector(-1.832551, 11.701591, 0), App.Vector(-4.015016, 8.089235, 0)),  # 10
    Part.LineSegment(App.Vector(-4.015016, 8.089235, 0), App.Vector(-7.025312, 8.089235, 0)),  # 11
    Part.LineSegment(App.Vector(-7.025312, 8.089235, 0), App.Vector(-11.364689, 3.272761, 0)),  # 12
    Part.LineSegment(App.Vector(-11.364689, 3.272761, 0), App.Vector(-11.364689, 0, 0)),  # 13
    Part.LineSegment(App.Vector(18.012892, 15.012917, 0), App.Vector(19.404403, 16.750786, 0)),  # 14
    Part.LineSegment(App.Vector(19.404403, 16.750786, 0), App.Vector(5.009265, 18.281856, 0)),  # 15
    Part.LineSegment(App.Vector(5.009265, 18.281856, 0), App.Vector(2.695112, 17.265854, 0)),  # 16
    Part.LineSegment(App.Vector(2.695112, 17.265854, 0), App.Vector(-2.695112, 17.265854, 0)),  # 17
    Part.LineSegment(App.Vector(-2.695112, 17.265854, 0), App.Vector(-5.009265, 18.281856, 0)),  # 18
    Part.LineSegment(App.Vector(-5.009265, 18.281856, 0), App.Vector(-19.404403, 16.750786, 0)),  # 19
    Part.LineSegment(App.Vector(-19.404403, 16.750786, 0), App.Vector(-18.012892, 15.012917, 0)),  # 20
    Part.LineSegment(App.Vector(-18.012892, 15.012917, 0), App.Vector(-13.572707, 15.012917, 0)),  # 21
    Part.LineSegment(App.Vector(-13.572707, 15.012917, 0), App.Vector(-11.013955, 13.131482, 0)),  # 22
    Part.LineSegment(App.Vector(-11.013955, 13.131482, 0), App.Vector(-5.896451, 13.131482, 0)),  # 23
    Part.LineSegment(App.Vector(-5.896451, 13.131482, 0), App.Vector(-4.394875, 15.088174, 0)),  # 24
    Part.LineSegment(App.Vector(-4.394875, 15.088174, 0), App.Vector(4.394875, 15.088174, 0)),  # 25
    Part.LineSegment(App.Vector(4.394875, 15.088174, 0), App.Vector(5.896451, 13.131482, 0)),  # 26
    Part.LineSegment(App.Vector(5.896451, 13.131482, 0), App.Vector(11.013955, 13.131482, 0)),  # 27
    Part.LineSegment(App.Vector(11.013955, 13.131482, 0), App.Vector(13.572707, 15.012917, 0)),  # 28
    Part.LineSegment(App.Vector(13.572707, 15.012917, 0), App.Vector(18.012892, 15.012917, 0)),  # 29
], False)
sketch4.addConstraint([
    Sketcher.Constraint("Coincident", 0, 2, 1, 1),
    Sketcher.Constraint("Coincident", 1, 2, 2, 1),
    Sketcher.Constraint("Coincident", 2, 2, 3, 1),
    Sketcher.Constraint("Coincident", 3, 2, 4, 1),
    Sketcher.Constraint("Coincident", 4, 2, 5, 1),
    Sketcher.Constraint("Coincident", 5, 2, 6, 1),
    Sketcher.Constraint("Coincident", 6, 2, 7, 1),
    Sketcher.Constraint("Coincident", 7, 2, 8, 1),
    Sketcher.Constraint("Coincident", 8, 2, 9, 1),
    Sketcher.Constraint("Coincident", 9, 2, 10, 1),
    Sketcher.Constraint("Coincident", 10, 2, 11, 1),
    Sketcher.Constraint("Coincident", 11, 2, 12, 1),
    Sketcher.Constraint("Coincident", 12, 2, 13, 1),
    Sketcher.Constraint("Coincident", 13, 2, 0, 1),
    Sketcher.Constraint("Coincident", 14, 2, 15, 1),
    Sketcher.Constraint("Coincident", 15, 2, 16, 1),
    Sketcher.Constraint("Coincident", 16, 2, 17, 1),
    Sketcher.Constraint("Coincident", 17, 2, 18, 1),
    Sketcher.Constraint("Coincident", 18, 2, 19, 1),
    Sketcher.Constraint("Coincident", 19, 2, 20, 1),
    Sketcher.Constraint("Coincident", 20, 2, 21, 1),
    Sketcher.Constraint("Coincident", 21, 2, 22, 1),
    Sketcher.Constraint("Coincident", 22, 2, 23, 1),
    Sketcher.Constraint("Coincident", 23, 2, 24, 1),
    Sketcher.Constraint("Coincident", 24, 2, 25, 1),
    Sketcher.Constraint("Coincident", 25, 2, 26, 1),
    Sketcher.Constraint("Coincident", 26, 2, 27, 1),
    Sketcher.Constraint("Coincident", 27, 2, 28, 1),
    Sketcher.Constraint("Coincident", 28, 2, 29, 1),
    Sketcher.Constraint("Coincident", 29, 2, 14, 1),
    Sketcher.Constraint("Horizontal", 2),
    Sketcher.Constraint("Vertical", 5),
    Sketcher.Constraint("Horizontal", 7),
    Sketcher.Constraint("Horizontal", 9),
    Sketcher.Constraint("Horizontal", 11),
    Sketcher.Constraint("Vertical", 13),
    Sketcher.Constraint("Horizontal", 17),
    Sketcher.Constraint("Horizontal", 21),
    Sketcher.Constraint("Horizontal", 23),
    Sketcher.Constraint("Horizontal", 25),
    Sketcher.Constraint("Horizontal", 27),
    Sketcher.Constraint("Horizontal", 29),
    Sketcher.Constraint("Symmetric", 1, 2, 2, 2, -1, 1),
    Sketcher.Constraint("Symmetric", 4, 2, 13, 2, -1, 1),
    Sketcher.Constraint("Symmetric", 0, 2, 3, 2, -2),
    Sketcher.Constraint("Symmetric", 7, 2, 10, 2, -2),
    Sketcher.Constraint("Symmetric", 15, 2, 18, 2, -2),
    Sketcher.Constraint("Symmetric", 14, 2, 19, 2, -2),
    Sketcher.Constraint("Symmetric", 23, 2, 26, 2, -2),
    Sketcher.Constraint("Symmetric", 21, 2, 28, 2, -2),
    Sketcher.Constraint("PointOnObject", 4, 2, -1),
    Sketcher.Constraint("Perpendicular", 0, 1),
    Sketcher.Constraint("Horizontal", 5, 2, 12, 2),
    Sketcher.Constraint("Vertical", 3, 2, 7, 2),
    Sketcher.Constraint("Equal", 7, 11),
    Sketcher.Constraint("Equal", 23, 27),
    Sketcher.Constraint("Equal", 21, 29),
    Sketcher.Constraint("Equal", 8, 10),
    Sketcher.Constraint("Equal", 16, 18),
    Sketcher.Constraint("Equal", 24, 26),
    Sketcher.Constraint("DistanceY", 16, 2, 15, 2, Q("0.0400001 in")),
    Sketcher.Constraint("DistanceX", 0, 2, 4, 2, Q("0.6055002 in")),
    Sketcher.Constraint("DistanceX", 25, 1, 25, 2, Q("8.78975 mm")),
    Sketcher.Constraint("DistanceY", 5, 1, 5, 2, Q("3.272761 mm")),
    Sketcher.Constraint("DistanceX", 16, 2, 6, 2, Q("4.3302 mm")),
    Sketcher.Constraint("DistanceX", 23, 2, 9, 2, Q("4.0639 mm")),
    Sketcher.Constraint("Distance", 8, Q("4.220458 mm")),
    Sketcher.Constraint("Distance", 15, Q("14.476331 mm")),
    Sketcher.Constraint("Distance", 24, Q("2.46645 mm")),
    Sketcher.Constraint("DistanceX", 2, 1, 2, 2, Q("5.500518 mm")),
    Sketcher.Constraint("DistanceX", 7, 2, 7, 1, Q("3.010296 mm")),
    Sketcher.Constraint("DistanceX", 9, 2, 9, 1, Q("3.665102 mm")),
    Sketcher.Constraint("DistanceX", 17, 2, 17, 1, Q("5.390224 mm")),
    Sketcher.Constraint("DistanceX", 21, 1, 21, 2, Q("4.440185 mm")),
    Sketcher.Constraint("DistanceX", 23, 1, 23, 2, Q("5.117504 mm")),
    Sketcher.Constraint("DistanceY", -1, 1, 8, 2, Q("11.701591 mm")),
    Sketcher.Constraint("DistanceX", 6, 2, 14, 2, Q("12.379091 mm")),
    Sketcher.Constraint("DistanceY", 6, 2, 14, 2, Q("8.661551 mm")),
    Sketcher.Constraint("DistanceX", 7, 2, 15, 2, Q("0.994249 mm")),
    Sketcher.Constraint("DistanceX", 19, 2, 20, 2, Q("1.391511 mm")),
    Sketcher.Constraint("DistanceY", 20, 2, 19, 2, Q("1.737869 mm")),
    Sketcher.Constraint("DistanceY", 9, 2, 23, 2, Q("1.429891 mm")),
])
pad4 = body.newObject("PartDesign::Pad", "Pad003")
pad4.Profile = sketch4
pad4.Length = Q("0.17 in")

# Sketch on XZ plane
sketch5 = body.newObject("Sketcher::SketchObject", "Sketch004")
sketch5.AttachmentSupport = (doc.getObject("XZ_Plane"), [""])
sketch5.MapMode = "FlatFace"
sketch5.AttachmentOffset = App.Placement(App.Vector(0, 0, 0.23 * 25.4), App.Rotation())
sketch5.addGeometry(Part.Circle(App.Vector(0, 24.332419, 0), App.Vector(0, 0, 1), 1.905), False)
sketch5.addConstraint([
    Sketcher.Constraint("PointOnObject", 0, 3, -2),
    Sketcher.Constraint("Diameter", 0, Q("0.15 in")),
    Sketcher.Constraint("DistanceY", -1, 1, 0, 3, Q("24.332419 mm")),
])
pocket1 = body.newObject("PartDesign::Pocket", "Pocket")
pocket1.Profile = sketch5
pocket1.Length = Q("1 in")

# Sketch on XZ plane
sketch6 = body.newObject("Sketcher::SketchObject", "Sketch005")
sketch6.AttachmentSupport = (doc.getObject("XZ_Plane"), [""])
sketch6.MapMode = "FlatFace"
sketch6.addGeometry([
    Part.LineSegment(App.Vector(4.180855, -20.625193, 0), App.Vector(4.180855, -11.195441, 0)),  # 0
    Part.LineSegment(App.Vector(4.180855, -11.195441, 0), App.Vector(3.601368, -9.465247, 0)),  # 1
    Part.LineSegment(App.Vector(3.601368, -9.465247, 0), App.Vector(-3.601368, -9.465247, 0)),  # 2
    Part.LineSegment(App.Vector(-3.601368, -9.465247, 0), App.Vector(-4.180855, -11.195441, 0)),  # 3
    Part.LineSegment(App.Vector(-4.180855, -11.195441, 0), App.Vector(-4.180855, -20.625193, 0)),  # 4
    Part.LineSegment(App.Vector(-4.180855, -20.625193, 0), App.Vector(4.180855, -20.625193, 0)),  # 5
], False)
sketch6.addConstraint([
    Sketcher.Constraint("Coincident", 0, 2, 1, 1),
    Sketcher.Constraint("Coincident", 1, 2, 2, 1),
    Sketcher.Constraint("Coincident", 2, 2, 3, 1),
    Sketcher.Constraint("Coincident", 3, 2, 4, 1),
    Sketcher.Constraint("Coincident", 4, 2, 5, 1),
    Sketcher.Constraint("Coincident", 5, 2, 0, 1),
    Sketcher.Constraint("Vertical", 0),
    Sketcher.Constraint("Horizontal", 2),
    Sketcher.Constraint("Vertical", 4),
    Sketcher.Constraint("Horizontal", 5),
    Sketcher.Constraint("Symmetric", 0, 2, 3, 2, -2),
    Sketcher.Constraint("Equal", 1, 3),
    Sketcher.Constraint("DistanceX", 5, 1, 5, 2, Q("8.36171 mm")),
    Sketcher.Constraint("DistanceY", 0, 1, 0, 2, Q("9.429752 mm")),
    Sketcher.Constraint("DistanceX", 2, 2, 2, 1, Q("7.202736 mm")),
    Sketcher.Constraint("DistanceY", 0, 2, -1, 1, Q("11.195441 mm")),
    Sketcher.Constraint("Distance", 1, Q("1.824658 mm")),
])
pad5 = body.newObject("PartDesign::Pad", "Pad004")
pad5.Profile = sketch6
pad5.Length = Q("0.25 in")

doc.recompute()
